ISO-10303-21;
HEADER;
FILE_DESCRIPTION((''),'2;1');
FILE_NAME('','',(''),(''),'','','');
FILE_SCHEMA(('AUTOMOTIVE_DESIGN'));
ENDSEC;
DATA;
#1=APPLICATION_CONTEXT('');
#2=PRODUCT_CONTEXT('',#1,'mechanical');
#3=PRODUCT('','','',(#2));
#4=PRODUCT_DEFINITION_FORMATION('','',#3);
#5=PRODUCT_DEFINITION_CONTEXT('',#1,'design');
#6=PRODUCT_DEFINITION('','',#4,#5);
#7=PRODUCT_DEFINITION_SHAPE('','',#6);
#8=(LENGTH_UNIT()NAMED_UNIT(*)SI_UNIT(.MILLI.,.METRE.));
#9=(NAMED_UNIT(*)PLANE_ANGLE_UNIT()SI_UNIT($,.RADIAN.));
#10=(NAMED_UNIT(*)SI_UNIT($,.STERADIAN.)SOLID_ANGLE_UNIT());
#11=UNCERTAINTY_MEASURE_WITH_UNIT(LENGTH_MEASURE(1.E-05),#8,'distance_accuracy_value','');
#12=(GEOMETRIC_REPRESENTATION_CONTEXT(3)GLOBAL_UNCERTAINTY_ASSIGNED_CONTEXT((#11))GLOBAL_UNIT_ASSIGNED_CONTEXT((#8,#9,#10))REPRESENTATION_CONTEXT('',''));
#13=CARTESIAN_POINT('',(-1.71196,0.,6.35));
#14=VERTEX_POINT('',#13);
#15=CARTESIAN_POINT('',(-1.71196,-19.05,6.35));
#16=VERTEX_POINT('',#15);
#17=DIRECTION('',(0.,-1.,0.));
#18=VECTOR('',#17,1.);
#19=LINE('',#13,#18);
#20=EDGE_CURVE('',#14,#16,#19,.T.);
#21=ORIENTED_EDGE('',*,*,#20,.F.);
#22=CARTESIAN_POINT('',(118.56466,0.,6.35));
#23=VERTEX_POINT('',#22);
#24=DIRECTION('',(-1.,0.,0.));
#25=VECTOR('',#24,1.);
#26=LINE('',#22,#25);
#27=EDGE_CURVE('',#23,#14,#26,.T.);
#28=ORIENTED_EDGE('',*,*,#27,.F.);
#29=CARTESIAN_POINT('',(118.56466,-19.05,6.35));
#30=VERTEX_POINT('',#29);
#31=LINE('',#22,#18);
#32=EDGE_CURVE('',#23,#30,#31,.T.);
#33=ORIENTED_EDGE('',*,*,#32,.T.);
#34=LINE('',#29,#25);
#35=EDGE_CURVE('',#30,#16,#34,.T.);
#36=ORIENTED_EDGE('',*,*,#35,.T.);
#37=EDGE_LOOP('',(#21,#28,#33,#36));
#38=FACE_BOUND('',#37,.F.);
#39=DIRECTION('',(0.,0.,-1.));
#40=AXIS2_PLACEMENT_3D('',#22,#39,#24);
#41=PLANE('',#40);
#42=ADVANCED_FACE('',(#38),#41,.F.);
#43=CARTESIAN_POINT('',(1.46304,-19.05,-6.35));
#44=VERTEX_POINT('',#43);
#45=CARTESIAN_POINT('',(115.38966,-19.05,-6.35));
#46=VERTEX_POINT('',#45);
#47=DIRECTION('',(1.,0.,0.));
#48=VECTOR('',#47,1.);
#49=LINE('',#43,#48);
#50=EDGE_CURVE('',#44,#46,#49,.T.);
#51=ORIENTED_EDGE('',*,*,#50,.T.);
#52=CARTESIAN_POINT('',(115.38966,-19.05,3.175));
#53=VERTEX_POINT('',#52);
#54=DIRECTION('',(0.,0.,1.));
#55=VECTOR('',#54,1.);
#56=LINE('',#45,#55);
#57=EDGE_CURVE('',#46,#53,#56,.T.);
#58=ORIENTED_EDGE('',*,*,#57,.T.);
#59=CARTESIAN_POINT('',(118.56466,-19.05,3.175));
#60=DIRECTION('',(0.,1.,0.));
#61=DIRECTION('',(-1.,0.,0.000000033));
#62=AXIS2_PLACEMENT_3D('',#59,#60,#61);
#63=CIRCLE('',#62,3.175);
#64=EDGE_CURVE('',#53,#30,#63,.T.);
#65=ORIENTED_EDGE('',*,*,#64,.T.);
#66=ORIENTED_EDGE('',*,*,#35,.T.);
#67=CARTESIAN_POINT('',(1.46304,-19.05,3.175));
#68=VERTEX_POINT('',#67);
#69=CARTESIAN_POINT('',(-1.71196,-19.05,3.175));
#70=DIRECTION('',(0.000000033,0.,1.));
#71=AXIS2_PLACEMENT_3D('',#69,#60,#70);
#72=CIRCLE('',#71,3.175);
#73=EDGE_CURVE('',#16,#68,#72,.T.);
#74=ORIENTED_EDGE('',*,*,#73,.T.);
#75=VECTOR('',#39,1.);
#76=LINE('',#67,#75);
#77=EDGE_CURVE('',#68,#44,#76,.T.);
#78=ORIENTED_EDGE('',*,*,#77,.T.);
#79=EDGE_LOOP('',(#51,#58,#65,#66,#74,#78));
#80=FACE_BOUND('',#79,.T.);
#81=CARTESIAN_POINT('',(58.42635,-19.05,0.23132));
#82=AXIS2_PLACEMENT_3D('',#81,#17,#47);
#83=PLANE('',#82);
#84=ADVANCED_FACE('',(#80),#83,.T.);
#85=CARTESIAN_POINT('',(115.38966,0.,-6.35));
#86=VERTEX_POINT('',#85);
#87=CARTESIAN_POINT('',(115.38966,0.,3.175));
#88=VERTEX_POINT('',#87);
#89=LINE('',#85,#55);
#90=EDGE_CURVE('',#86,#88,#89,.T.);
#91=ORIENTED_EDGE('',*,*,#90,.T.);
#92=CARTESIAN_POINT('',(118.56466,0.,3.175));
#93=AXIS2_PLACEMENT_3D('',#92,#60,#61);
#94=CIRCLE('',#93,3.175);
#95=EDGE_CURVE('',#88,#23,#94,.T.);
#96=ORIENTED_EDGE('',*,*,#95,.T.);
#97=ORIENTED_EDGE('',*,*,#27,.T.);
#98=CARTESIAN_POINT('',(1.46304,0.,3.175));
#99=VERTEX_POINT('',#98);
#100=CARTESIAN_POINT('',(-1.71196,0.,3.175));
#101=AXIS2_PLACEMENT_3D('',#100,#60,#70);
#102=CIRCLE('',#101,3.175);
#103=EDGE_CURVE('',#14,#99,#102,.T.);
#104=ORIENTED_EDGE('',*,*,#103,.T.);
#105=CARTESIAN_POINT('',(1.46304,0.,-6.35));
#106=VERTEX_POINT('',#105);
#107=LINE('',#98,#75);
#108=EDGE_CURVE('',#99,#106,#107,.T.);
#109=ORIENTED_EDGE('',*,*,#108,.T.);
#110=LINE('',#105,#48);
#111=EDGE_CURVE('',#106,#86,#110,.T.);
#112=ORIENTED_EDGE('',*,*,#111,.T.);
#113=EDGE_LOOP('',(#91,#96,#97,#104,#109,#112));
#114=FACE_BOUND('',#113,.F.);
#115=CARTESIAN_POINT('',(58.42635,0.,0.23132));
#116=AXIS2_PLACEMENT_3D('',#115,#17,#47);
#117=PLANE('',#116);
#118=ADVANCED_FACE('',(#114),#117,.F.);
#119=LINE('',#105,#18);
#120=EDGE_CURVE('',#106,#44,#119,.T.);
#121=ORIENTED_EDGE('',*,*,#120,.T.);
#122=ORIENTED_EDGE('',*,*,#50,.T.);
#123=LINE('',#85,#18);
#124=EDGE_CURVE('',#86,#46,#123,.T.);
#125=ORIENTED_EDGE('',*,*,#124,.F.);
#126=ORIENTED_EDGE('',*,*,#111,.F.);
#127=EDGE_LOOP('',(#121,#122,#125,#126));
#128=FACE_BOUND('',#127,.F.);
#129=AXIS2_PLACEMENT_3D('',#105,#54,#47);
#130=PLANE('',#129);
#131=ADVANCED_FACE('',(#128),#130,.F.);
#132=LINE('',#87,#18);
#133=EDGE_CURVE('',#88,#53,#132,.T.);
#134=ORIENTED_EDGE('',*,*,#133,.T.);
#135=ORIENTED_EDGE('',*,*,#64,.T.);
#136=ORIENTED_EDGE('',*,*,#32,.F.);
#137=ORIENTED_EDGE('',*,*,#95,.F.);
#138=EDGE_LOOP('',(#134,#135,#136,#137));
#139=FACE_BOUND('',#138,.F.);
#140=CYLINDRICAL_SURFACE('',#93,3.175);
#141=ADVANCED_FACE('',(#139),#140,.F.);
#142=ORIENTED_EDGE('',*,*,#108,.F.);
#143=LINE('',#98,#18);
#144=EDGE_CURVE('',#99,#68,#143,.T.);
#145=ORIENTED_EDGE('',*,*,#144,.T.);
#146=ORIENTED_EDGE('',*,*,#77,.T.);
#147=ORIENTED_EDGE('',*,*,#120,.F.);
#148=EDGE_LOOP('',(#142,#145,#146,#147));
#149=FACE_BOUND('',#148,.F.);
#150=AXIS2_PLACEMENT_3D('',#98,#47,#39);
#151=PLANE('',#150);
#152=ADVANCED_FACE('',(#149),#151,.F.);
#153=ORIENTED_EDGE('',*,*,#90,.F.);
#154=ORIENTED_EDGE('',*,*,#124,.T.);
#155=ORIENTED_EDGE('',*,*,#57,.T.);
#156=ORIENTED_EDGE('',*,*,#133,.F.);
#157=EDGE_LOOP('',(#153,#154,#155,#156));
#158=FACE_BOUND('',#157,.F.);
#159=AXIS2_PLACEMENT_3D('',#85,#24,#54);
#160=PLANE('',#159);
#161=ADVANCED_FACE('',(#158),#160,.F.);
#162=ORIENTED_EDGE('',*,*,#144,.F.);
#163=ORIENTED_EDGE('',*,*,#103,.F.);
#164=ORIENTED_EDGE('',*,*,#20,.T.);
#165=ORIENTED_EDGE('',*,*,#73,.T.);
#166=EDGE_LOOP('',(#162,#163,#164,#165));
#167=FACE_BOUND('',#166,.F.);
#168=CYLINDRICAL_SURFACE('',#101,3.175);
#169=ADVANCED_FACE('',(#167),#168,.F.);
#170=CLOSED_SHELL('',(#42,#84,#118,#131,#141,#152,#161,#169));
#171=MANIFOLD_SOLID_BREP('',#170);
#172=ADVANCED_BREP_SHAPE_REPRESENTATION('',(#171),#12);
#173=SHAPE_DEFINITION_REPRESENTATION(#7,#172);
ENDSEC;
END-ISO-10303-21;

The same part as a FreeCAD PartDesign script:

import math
import FreeCAD as App
import Part
import Sketcher
from FreeCAD import Vector
Q = App.Units.Quantity

doc = App.newDocument("Part")
params = doc.addObject("Spreadsheet::Sheet", "Params")
for row, (alias, value) in enumerate([
    ("sketch1_radius", "0.125 in"),
    ("pad1_length", "0.75 in"),
], start=1):
    params.set(f"A{row}", alias)
    params.set(f"B{row}", "=" + value)
    params.setAlias(f"B{row}", alias)

body = doc.addObject("PartDesign::Body", "Body")

# Sketch on XZ plane
sketch1 = body.newObject("Sketcher::SketchObject", "Sketch")
sketch1.AttachmentSupport = (doc.getObject("XZ_Plane"), [""])
sketch1.MapMode = "FlatFace"
sketch1.addGeometry([
    Part.ArcOfCircle(Part.Circle(Vector(118.56466, 3.175, 0), Vector(0, 0, 1), 3.175), math.radians(90.000002), math.radians(179.999998)),  # 0
    Part.LineSegment(Vector(118.56466, 6.35, 0), Vector(-1.71196, 6.35, 0)),  # 1
    Part.ArcOfCircle(Part.Circle(Vector(-1.71196, 3.175, 0), Vector(0, 0, 1), 3.175), math.radians(0.000002), math.radians(89.999998)),  # 2
    Part.LineSegment(Vector(1.46304, 3.175, 0), Vector(1.46304, -6.35, 0)),  # 3
    Part.LineSegment(Vector(1.46304, -6.35, 0), Vector(115.38966, -6.35, 0)),  # 4
    Part.LineSegment(Vector(115.38966, -6.35, 0), Vector(115.38966, 3.175, 0)),  # 5
], False)
sketch1.addConstraint([
    Sketcher.Constraint("Tangent", 0, 1, 1, 1),
    Sketcher.Constraint("Tangent", 1, 2, 2, 2),
    Sketcher.Constraint("Tangent", 2, 1, 3, 1),
    Sketcher.Constraint("Coincident", 3, 2, 4, 1),
    Sketcher.Constraint("Coincident", 4, 2, 5, 1),
    Sketcher.Constraint("Tangent", 5, 2, 0, 2),
    Sketcher.Constraint("Horizontal", 1),
    Sketcher.Constraint("Vertical", 3),
    Sketcher.Constraint("Horizontal", 4),
    Sketcher.Constraint("Vertical", 5),
    Sketcher.Constraint("Equal", 0, 2),
    Sketcher.Constraint("Radius", 0, Q("0.125 in")),
    Sketcher.Constraint("DistanceY", 3, 2, 1, 2, Q("0.5 in")),
    Sketcher.Constraint("DistanceY", -1, 1, 0, 1, Q("0.25 in")),
    Sketcher.Constraint("DistanceX", 1, 2, 1, 1, Q("4.7353 in")),
    Sketcher.Constraint("DistanceX", -1, 1, 0, 3, Q("4.6679 in")),
])
sketch1.setExpression("Constraints[11]", "Params.sketch1_radius")
pad1 = body.newObject("PartDesign::Pad", "Pad")
pad1.Profile = sketch1
pad1.setExpression("Length", "Params.pad1_length")

doc.recompute()
